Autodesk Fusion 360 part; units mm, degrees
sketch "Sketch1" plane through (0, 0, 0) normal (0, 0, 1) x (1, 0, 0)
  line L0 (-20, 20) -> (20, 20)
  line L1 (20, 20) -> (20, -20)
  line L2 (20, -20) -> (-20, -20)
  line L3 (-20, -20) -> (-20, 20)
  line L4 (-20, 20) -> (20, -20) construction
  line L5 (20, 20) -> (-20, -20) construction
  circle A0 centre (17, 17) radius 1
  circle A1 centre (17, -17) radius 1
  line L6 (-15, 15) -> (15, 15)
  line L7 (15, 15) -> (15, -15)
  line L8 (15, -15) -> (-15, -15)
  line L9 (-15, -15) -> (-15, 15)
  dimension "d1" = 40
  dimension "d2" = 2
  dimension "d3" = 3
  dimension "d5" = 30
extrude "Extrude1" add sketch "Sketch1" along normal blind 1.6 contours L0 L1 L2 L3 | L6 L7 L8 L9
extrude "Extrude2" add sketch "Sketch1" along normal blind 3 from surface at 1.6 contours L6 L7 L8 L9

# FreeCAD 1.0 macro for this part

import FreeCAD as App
import Part
import Sketcher
from FreeCAD import Vector

doc = App.newDocument("Part")
body = doc.addObject("PartDesign::Body", "Body")

sketch1 = body.newObject("Sketcher::SketchObject", "Sketch")
sketch1.AttachmentSupport = (doc.getObject("XY_Plane"), [""])
sketch1.MapMode = "FlatFace"
sketch1.addGeometry([
    Part.LineSegment(Vector(20, 20, 0), Vector(-20, 20, 0)),
    Part.LineSegment(Vector(-20, 20, 0), Vector(-20, -20, 0)),
    Part.LineSegment(Vector(-20, -20, 0), Vector(20, -20, 0)),
    Part.LineSegment(Vector(20, -20, 0), Vector(20, 20, 0)),
    Part.Circle(Vector(17, -17, 0), Vector(0, 0, 1), 1),
    Part.Circle(Vector(17, 17, 0), Vector(0, 0, 1), 1),
], False)
sketch1.addConstraint([
    Sketcher.Constraint("Coincident", 0, 2, 1, 1),
    Sketcher.Constraint("Coincident", 1, 2, 2, 1),
    Sketcher.Constraint("Coincident", 2, 2, 3, 1),
    Sketcher.Constraint("Coincident", 3, 2, 0, 1),
    Sketcher.Constraint("Horizontal", 0),
    Sketcher.Constraint("Vertical", 1),
    Sketcher.Constraint("Horizontal", 2),
    Sketcher.Constraint("Vertical", 3),
    Sketcher.Constraint("Equal", 4, 5),
    Sketcher.Constraint("Symmetric", 0, 2, 2, 2, -1, 1),
    Sketcher.Constraint("Symmetric", 4, 3, 5, 3, -1),
    Sketcher.Constraint("Equal", 2, 1),
    Sketcher.Constraint("Diameter", 4, 2.0),
    Sketcher.Constraint("DistanceX", 0, 2, 0, 1, 40.0),
    Sketcher.Constraint("DistanceY", 5, 3, 0, 2, 3.0),
    Sketcher.Constraint("DistanceX", 4, 3, 2, 2, 3.0),
])
pad1 = body.newObject("PartDesign::Pad", "Pad")
pad1.Profile = sketch1
pad1.Length = 1.6

sketch2 = body.newObject("Sketcher::SketchObject", "Sketch001")
sketch2.AttachmentSupport = (doc.getObject("XY_Plane"), [""])
sketch2.MapMode = "FlatFace"
sketch2.AttachmentOffset = App.Placement(Vector(0, 0, 1.6), App.Rotation())
sketch2.addGeometry([
    Part.LineSegment(Vector(15, 15, 0), Vector(-15, 15, 0)),
    Part.LineSegment(Vector(-15, 15, 0), Vector(-15, -15, 0)),
    Part.LineSegment(Vector(-15, -15, 0), Vector(15, -15, 0)),
    Part.LineSegment(Vector(15, -15, 0), Vector(15, 15, 0)),
], False)
sketch2.addConstraint([
    Sketcher.Constraint("Coincident", 0, 2, 1, 1),
    Sketcher.Constraint("Coincident", 1, 2, 2, 1),
    Sketcher.Constraint("Coincident", 2, 2, 3, 1),
    Sketcher.Constraint("Coincident", 3, 2, 0, 1),
    Sketcher.Constraint("Horizontal", 0),
    Sketcher.Constraint("Vertical", 1),
    Sketcher.Constraint("Horizontal", 2),
    Sketcher.Constraint("Vertical", 3),
    Sketcher.Constraint("Symmetric", 0, 2, 2, 2, -1, 1),
    Sketcher.Constraint("Equal", 2, 1),
    Sketcher.Constraint("DistanceX", 0, 2, 0, 1, 30.0),
])
pad2 = body.newObject("PartDesign::Pad", "Pad001")
pad2.Profile = sketch2
pad2.Length = 3

doc.recompute()
